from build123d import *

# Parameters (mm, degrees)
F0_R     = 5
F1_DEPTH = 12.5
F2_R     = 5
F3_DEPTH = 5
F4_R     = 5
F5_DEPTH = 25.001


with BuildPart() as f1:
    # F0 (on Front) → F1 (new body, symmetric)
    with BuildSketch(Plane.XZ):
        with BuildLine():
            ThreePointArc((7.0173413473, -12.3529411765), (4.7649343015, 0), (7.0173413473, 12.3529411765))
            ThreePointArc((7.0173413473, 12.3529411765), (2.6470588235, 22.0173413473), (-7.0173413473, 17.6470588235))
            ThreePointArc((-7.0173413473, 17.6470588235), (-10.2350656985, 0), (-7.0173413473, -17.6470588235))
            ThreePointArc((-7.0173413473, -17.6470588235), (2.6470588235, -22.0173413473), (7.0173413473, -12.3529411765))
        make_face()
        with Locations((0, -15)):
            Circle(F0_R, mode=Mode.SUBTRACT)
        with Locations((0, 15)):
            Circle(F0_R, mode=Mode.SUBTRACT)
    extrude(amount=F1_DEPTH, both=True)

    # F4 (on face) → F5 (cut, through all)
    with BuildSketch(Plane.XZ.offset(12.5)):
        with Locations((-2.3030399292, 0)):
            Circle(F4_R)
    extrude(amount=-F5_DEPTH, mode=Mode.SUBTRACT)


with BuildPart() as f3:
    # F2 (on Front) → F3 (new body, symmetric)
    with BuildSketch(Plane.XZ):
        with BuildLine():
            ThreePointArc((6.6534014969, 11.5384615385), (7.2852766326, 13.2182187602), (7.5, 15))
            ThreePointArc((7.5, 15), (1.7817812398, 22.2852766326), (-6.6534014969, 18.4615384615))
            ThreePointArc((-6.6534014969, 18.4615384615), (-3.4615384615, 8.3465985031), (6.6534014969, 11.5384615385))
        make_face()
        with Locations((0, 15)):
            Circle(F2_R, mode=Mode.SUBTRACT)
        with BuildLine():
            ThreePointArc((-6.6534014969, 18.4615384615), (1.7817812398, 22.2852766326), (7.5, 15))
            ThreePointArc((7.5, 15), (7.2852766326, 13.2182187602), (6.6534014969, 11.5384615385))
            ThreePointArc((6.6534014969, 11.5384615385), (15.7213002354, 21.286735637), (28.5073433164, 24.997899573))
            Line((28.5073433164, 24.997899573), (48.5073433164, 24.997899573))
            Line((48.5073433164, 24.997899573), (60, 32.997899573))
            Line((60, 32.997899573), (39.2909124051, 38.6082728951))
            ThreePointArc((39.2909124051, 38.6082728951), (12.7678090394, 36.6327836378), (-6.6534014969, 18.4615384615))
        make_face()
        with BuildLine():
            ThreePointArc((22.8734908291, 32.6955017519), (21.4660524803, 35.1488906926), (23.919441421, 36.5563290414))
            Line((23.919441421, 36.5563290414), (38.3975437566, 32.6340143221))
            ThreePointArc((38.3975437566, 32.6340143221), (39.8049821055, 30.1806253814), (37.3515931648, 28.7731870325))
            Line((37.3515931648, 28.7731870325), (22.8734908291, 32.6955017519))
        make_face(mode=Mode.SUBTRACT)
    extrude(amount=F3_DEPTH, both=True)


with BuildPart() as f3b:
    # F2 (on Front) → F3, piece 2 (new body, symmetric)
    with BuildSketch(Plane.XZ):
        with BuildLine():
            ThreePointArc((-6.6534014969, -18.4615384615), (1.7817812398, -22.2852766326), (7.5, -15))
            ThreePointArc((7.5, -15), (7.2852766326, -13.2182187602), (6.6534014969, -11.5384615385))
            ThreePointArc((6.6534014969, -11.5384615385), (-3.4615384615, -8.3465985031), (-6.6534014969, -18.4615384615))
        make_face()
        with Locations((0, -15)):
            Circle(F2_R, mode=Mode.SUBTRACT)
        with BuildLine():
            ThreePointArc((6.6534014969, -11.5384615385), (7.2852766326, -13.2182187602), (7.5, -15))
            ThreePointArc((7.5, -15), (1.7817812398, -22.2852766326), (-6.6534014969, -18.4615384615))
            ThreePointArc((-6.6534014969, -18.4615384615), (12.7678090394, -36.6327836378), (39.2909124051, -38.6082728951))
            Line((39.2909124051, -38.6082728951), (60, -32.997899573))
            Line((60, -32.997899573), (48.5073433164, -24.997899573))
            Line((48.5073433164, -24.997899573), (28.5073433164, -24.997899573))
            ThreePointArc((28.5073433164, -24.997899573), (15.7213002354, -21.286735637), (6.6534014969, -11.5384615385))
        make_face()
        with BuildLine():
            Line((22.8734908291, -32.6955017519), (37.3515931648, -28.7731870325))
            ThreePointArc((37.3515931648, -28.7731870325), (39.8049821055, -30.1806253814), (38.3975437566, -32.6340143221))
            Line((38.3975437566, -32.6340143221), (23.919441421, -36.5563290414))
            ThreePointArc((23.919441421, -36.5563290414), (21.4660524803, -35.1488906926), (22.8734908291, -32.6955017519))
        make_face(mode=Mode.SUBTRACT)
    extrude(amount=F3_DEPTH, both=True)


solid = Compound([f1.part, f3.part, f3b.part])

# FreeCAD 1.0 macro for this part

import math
import FreeCAD as App
import Part
import Sketcher

V = App.Vector
Q = App.Units.Quantity

doc = App.newDocument("Part")
body = doc.addObject("PartDesign::Body", "Body")

sketch1 = doc.addObject("Sketcher::SketchObject", "Sketch")
body.addObject(sketch1)
sketch1.AttachmentSupport = (doc.XZ_Plane, [""])
sketch1.MapMode = "FlatFace"
sketch1.addGeometry([
    Part.ArcOfCircle(Part.Circle(V(40, 0, 0), V(0, 0, 1), 35), math.radians(159), math.radians(201)),
    Part.ArcOfCircle(Part.Circle(V(0, 15, 0), V(0, 0, 1), 8), math.radians(-21), math.radians(159)),
    Part.ArcOfCircle(Part.Circle(V(40, 0, 0), V(0, 0, 1), 50), math.radians(159), math.radians(201)),
    Part.ArcOfCircle(Part.Circle(V(0, -15, 0), V(0, 0, 1), 8), math.radians(-159), math.radians(21)),
    Part.Circle(V(0, -15, 0), V(0, 0, 1), 5),
    Part.Circle(V(0, 15, 0), V(0, 0, 1), 5),
], False)
sketch1.addConstraint([
    Sketcher.Constraint("Tangent", 0, 1, 1, 1),
    Sketcher.Constraint("Tangent", 1, 2, 2, 1),
    Sketcher.Constraint("Tangent", 2, 2, 3, 1),
    Sketcher.Constraint("Tangent", 3, 2, 0, 2),
    Sketcher.Constraint("Coincident", 2, 3, 0, 3),
    Sketcher.Constraint("Coincident", 4, 3, 3, 3),
    Sketcher.Constraint("Coincident", 5, 3, 1, 3),
    Sketcher.Constraint("Equal", 4, 5),
    Sketcher.Constraint("Symmetric", 1, 3, 3, 3, -1, 1),
    Sketcher.Constraint("PointOnObject", 0, 3, -1),
    Sketcher.Constraint("Diameter", 4, Q("10 mm")),
    Sketcher.Constraint("Radius", 0, Q("35 mm")),
    Sketcher.Constraint("Radius", 2, Q("50 mm")),
    Sketcher.Constraint("DistanceY", -1, 1, 1, 3, Q("15 mm")),
])
pad1 = doc.addObject("PartDesign::Pad", "Pad")
body.addObject(pad1)
pad1.Profile = sketch1
pad1.Length = 25
pad1.Midplane = True

sketch2 = doc.addObject("Sketcher::SketchObject", "Sketch001")
body.addObject(sketch2)
sketch2.AttachmentSupport = (doc.XZ_Plane, [""])
sketch2.MapMode = "FlatFace"
sketch2.AttachmentOffset = App.Placement(V(0, 0, 12.5), App.Rotation())
sketch2.addGeometry(Part.Circle(V(-2, 0, 0), V(0, 0, 1), 5), False)
sketch2.addConstraint([
    Sketcher.Constraint("PointOnObject", 0, 3, -1),
    Sketcher.Constraint("Diameter", 0, Q("10 mm")),
    Sketcher.Constraint("DistanceX", 0, 3, -1, 1, Q("2.30304 mm")),
])
pocket1 = doc.addObject("PartDesign::Pocket", "Pocket")
body.addObject(pocket1)
pocket1.Profile = sketch2
pocket1.Type = "ThroughAll"
body2 = doc.addObject("PartDesign::Body", "Body001")

sketch3 = doc.addObject("Sketcher::SketchObject", "Sketch002")
body2.addObject(sketch3)
sketch3.AttachmentSupport = (doc.getObject("XZ_Plane001"), [""])
sketch3.MapMode = "FlatFace"
sketch3.addGeometry([
    Part.ArcOfCircle(Part.Circle(V(0, 15, 0), V(0, 0, 1), 7.5), math.radians(153), math.radians(333)),
    Part.ArcOfCircle(Part.Circle(V(28.8, 0, 0), V(0, 0, 1), 25), math.radians(91), math.radians(153)),
    Part.LineSegment(V(28.5, 25, 0), V(48.5, 25, 0)),
    Part.LineSegment(V(48.5, 25, 0), V(60, 33, 0)),
    Part.LineSegment(V(60, 33, 0), V(39.3, 38.6, 0)),
    Part.ArcOfCircle(Part.Circle(V(28.8, 0, 0), V(0, 0, 1), 40), math.radians(75), math.radians(153)),
    Part.Circle(V(0, 15, 0), V(0, 0, 1), 5),
    Part.LineSegment(V(37.4, 28.8, 0), V(22.9, 32.7, 0)),
    Part.ArcOfCircle(Part.Circle(V(23.4, 34.6, 0), V(0, 0, 1), 2), math.radians(75), math.radians(255)),
    Part.LineSegment(V(23.9, 36.6, 0), V(38.4, 32.6, 0)),
    Part.ArcOfCircle(Part.Circle(V(37.9, 30.7, 0), V(0, 0, 1), 2), math.radians(-105), math.radians(75)),
], False)
sketch3.addConstraint([
    Sketcher.Constraint("Tangent", 0, 2, 1, 2),
    Sketcher.Constraint("Coincident", 1, 1, 2, 1),
    Sketcher.Constraint("Coincident", 2, 2, 3, 1),
    Sketcher.Constraint("Coincident", 3, 2, 4, 1),
    Sketcher.Constraint("Tangent", 4, 2, 5, 1),
    Sketcher.Constraint("Tangent", 5, 2, 0, 1),
    Sketcher.Constraint("Tangent", 7, 2, 8, 2),
    Sketcher.Constraint("Tangent", 8, 1, 9, 1),
    Sketcher.Constraint("Tangent", 9, 2, 10, 2),
    Sketcher.Constraint("Tangent", 10, 1, 7, 1),
    Sketcher.Constraint("Horizontal", 2),
    Sketcher.Constraint("Coincident", 5, 3, 1, 3),
    Sketcher.Constraint("Coincident", 6, 3, 0, 3),
    Sketcher.Constraint("Equal", 8, 10),
    Sketcher.Constraint("PointOnObject", 0, 3, -2),
    Sketcher.Constraint("PointOnObject", 1, 3, -1),
    Sketcher.Constraint("Parallel", 4, 7),
    Sketcher.Constraint("Diameter", 6, Q("10 mm")),
    Sketcher.Constraint("Radius", 1, Q("25 mm")),
    Sketcher.Constraint("Radius", 5, Q("40 mm")),
    Sketcher.Constraint("Radius", 8, Q("2 mm")),
    Sketcher.Constraint("DistanceX", 2, 1, 2, 2, Q("20 mm")),
    Sketcher.Constraint("Distance", 7, Q("15 mm")),
    Sketcher.Constraint("DistanceY", -1, 1, 0, 3, Q("15 mm")),
    Sketcher.Constraint("DistanceX", -1, 1, 3, 2, Q("60 mm")),
    Sketcher.Constraint("DistanceY", 2, 2, 3, 2, Q("8 mm")),
    Sketcher.Constraint("Distance", 3, Q("14.002898 mm")),
    Sketcher.Constraint("DistanceY", -1, 1, 10, 3, Q("30.703601 mm")),
    Sketcher.Constraint("DistanceX", 8, 1, 1, 1, Q("4.587902 mm")),
])
pad2 = doc.addObject("PartDesign::Pad", "Pad001")
body2.addObject(pad2)
pad2.Profile = sketch3
pad2.Length = 10
pad2.Midplane = True
body3 = doc.addObject("PartDesign::Body", "Body002")

sketch4 = doc.addObject("Sketcher::SketchObject", "Sketch003")
body3.addObject(sketch4)
sketch4.AttachmentSupport = (doc.getObject("XZ_Plane002"), [""])
sketch4.MapMode = "FlatFace"
sketch4.addGeometry([
    Part.ArcOfCircle(Part.Circle(V(0, -15, 0), V(0, 0, 1), 7.5), math.radians(27), math.radians(207)),
    Part.ArcOfCircle(Part.Circle(V(28.8, 0, 0), V(0, 0, 1), 40), math.radians(-153), math.radians(-75)),
    Part.LineSegment(V(39.3, -38.6, 0), V(60, -33, 0)),
    Part.LineSegment(V(60, -33, 0), V(48.5, -25, 0)),
    Part.LineSegment(V(48.5, -25, 0), V(28.5, -25, 0)),
    Part.ArcOfCircle(Part.Circle(V(28.8, 0, 0), V(0, 0, 1), 25), math.radians(-153), math.radians(-91)),
    Part.ArcOfCircle(Part.Circle(V(23.4, -34.6, 0), V(0, 0, 1), 2), math.radians(105), math.radians(285)),
    Part.LineSegment(V(22.9, -32.7, 0), V(37.4, -28.8, 0)),
    Part.ArcOfCircle(Part.Circle(V(37.9, -30.7, 0), V(0, 0, 1), 2), math.radians(-75), math.radians(105)),
    Part.LineSegment(V(38.4, -32.6, 0), V(23.9, -36.6, 0)),
    Part.Circle(V(0, -15, 0), V(0, 0, 1), 5),
], False)
sketch4.addConstraint([
    Sketcher.Constraint("Tangent", 0, 2, 1, 1),
    Sketcher.Constraint("Tangent", 1, 2, 2, 1),
    Sketcher.Constraint("Coincident", 2, 2, 3, 1),
    Sketcher.Constraint("Coincident", 3, 2, 4, 1),
    Sketcher.Constraint("Coincident", 4, 2, 5, 2),
    Sketcher.Constraint("Tangent", 5, 1, 0, 1),
    Sketcher.Constraint("Tangent", 6, 1, 7, 1),
    Sketcher.Constraint("Tangent", 7, 2, 8, 2),
    Sketcher.Constraint("Tangent", 8, 1, 9, 1),
    Sketcher.Constraint("Tangent", 9, 2, 6, 2),
    Sketcher.Constraint("Horizontal", 4),
    Sketcher.Constraint("Coincident", 5, 3, 1, 3),
    Sketcher.Constraint("Coincident", 10, 3, 0, 3),
    Sketcher.Constraint("Equal", 6, 8),
    Sketcher.Constraint("PointOnObject", 0, 3, -2),
    Sketcher.Constraint("PointOnObject", 1, 3, -1),
    Sketcher.Constraint("Parallel", 2, 7),
    Sketcher.Constraint("Diameter", 10, Q("10 mm")),
    Sketcher.Constraint("Radius", 1, Q("40 mm")),
    Sketcher.Constraint("Radius", 5, Q("25 mm")),
    Sketcher.Constraint("Radius", 6, Q("2 mm")),
    Sketcher.Constraint("DistanceX", 4, 2, 4, 1, Q("20 mm")),
    Sketcher.Constraint("Distance", 7, Q("15 mm")),
    Sketcher.Constraint("DistanceY", 0, 3, -1, 1, Q("15 mm")),
    Sketcher.Constraint("DistanceX", -1, 1, 2, 2, Q("60 mm")),
    Sketcher.Constraint("DistanceY", 2, 2, 3, 2, Q("8 mm")),
    Sketcher.Constraint("Distance", 3, Q("14.002898 mm")),
    Sketcher.Constraint("DistanceY", 8, 3, -1, 1, Q("30.703601 mm")),
    Sketcher.Constraint("DistanceX", 4, 2, 8, 1, Q("9.8902 mm")),
])
pad3 = doc.addObject("PartDesign::Pad", "Pad002")
body3.addObject(pad3)
pad3.Profile = sketch4
pad3.Length = 10
pad3.Midplane = True

doc.recompute()
